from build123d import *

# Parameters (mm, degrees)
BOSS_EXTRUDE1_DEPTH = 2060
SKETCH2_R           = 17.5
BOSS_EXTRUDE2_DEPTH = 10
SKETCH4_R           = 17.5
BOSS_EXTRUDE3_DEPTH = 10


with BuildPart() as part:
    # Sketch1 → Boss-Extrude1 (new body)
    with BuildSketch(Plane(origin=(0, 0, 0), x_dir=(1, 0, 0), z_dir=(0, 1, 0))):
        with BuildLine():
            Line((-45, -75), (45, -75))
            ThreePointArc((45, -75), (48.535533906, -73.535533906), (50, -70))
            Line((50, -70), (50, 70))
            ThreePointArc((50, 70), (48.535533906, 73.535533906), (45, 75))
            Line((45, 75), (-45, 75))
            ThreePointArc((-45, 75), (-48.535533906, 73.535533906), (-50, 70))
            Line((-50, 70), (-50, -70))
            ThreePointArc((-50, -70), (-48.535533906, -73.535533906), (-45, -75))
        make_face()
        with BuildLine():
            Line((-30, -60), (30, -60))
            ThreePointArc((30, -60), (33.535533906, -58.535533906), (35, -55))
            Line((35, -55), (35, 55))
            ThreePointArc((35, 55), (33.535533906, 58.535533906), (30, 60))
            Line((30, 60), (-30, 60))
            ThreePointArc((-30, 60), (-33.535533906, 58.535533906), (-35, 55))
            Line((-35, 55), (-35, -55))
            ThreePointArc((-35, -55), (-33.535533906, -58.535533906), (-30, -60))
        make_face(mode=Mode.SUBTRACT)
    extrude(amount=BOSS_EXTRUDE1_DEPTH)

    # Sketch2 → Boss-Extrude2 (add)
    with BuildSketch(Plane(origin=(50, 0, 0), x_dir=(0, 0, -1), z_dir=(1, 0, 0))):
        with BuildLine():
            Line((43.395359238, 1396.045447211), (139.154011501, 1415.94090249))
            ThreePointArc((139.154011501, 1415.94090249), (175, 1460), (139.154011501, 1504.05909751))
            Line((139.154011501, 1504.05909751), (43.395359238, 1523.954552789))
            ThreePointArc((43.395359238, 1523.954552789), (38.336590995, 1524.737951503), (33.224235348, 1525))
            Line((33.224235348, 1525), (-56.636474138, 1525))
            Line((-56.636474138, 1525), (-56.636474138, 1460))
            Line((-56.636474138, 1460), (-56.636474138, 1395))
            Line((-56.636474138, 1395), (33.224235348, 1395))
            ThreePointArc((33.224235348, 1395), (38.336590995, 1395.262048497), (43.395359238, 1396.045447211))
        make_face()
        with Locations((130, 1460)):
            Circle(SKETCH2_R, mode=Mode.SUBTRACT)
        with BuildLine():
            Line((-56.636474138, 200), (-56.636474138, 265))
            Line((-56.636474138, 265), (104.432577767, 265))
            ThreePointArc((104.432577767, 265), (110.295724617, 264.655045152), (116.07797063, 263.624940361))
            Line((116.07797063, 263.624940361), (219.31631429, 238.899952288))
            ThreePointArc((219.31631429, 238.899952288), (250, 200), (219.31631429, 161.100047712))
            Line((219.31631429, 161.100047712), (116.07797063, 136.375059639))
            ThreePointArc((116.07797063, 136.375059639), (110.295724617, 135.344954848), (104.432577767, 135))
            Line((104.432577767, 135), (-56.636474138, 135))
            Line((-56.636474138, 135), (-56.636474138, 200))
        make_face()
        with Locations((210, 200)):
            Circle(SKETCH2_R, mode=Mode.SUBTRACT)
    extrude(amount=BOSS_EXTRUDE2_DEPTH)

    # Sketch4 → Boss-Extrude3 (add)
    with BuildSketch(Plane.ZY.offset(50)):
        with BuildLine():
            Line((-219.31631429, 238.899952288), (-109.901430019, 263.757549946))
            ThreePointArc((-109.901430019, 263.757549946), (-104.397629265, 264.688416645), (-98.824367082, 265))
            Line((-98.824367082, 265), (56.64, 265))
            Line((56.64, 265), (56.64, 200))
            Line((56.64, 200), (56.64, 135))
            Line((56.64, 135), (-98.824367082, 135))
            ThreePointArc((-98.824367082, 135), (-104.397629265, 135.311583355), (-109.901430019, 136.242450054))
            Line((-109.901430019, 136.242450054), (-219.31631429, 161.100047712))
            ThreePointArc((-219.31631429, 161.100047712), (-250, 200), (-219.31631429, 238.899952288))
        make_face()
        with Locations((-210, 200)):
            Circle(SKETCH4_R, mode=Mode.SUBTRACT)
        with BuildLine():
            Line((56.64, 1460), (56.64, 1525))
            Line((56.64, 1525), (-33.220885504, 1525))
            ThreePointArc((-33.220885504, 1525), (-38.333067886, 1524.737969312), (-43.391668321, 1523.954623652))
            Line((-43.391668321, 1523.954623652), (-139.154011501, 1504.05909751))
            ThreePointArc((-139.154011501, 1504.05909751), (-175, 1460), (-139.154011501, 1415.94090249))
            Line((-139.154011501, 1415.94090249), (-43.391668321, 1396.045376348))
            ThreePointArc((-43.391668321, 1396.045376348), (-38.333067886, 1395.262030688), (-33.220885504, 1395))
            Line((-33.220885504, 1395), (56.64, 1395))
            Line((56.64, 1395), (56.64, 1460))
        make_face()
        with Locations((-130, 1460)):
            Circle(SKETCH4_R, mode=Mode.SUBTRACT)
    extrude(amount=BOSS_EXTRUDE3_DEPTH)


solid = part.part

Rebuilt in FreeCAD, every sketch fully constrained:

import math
import FreeCAD as App
import Part
import Sketcher

doc = App.newDocument("Part")
body = doc.addObject("PartDesign::Body", "Body")

# Sketch on XZ plane
sketch1 = doc.addObject("Sketcher::SketchObject", "Sketch")
body.addObject(sketch1)
sketch1.AttachmentSupport = (doc.XZ_Plane, [""])
sketch1.MapMode = "FlatFace"
sketch1.addGeometry([
    Part.LineSegment(App.Vector(-45, 75, 0), App.Vector(45, 75, 0)),  # 0
    Part.ArcOfCircle(Part.Circle(App.Vector(45, 70, 0), App.Vector(0, 0, 1), 5), math.radians(0), math.radians(90)),  # 1
    Part.LineSegment(App.Vector(50, 70, 0), App.Vector(50, -70, 0)),  # 2
    Part.ArcOfCircle(Part.Circle(App.Vector(45, -70, 0), App.Vector(0, 0, 1), 5), math.radians(-90), math.radians(0)),  # 3
    Part.LineSegment(App.Vector(45, -75, 0), App.Vector(-45, -75, 0)),  # 4
    Part.ArcOfCircle(Part.Circle(App.Vector(-45, -70, 0), App.Vector(0, 0, 1), 5), math.radians(180), math.radians(270)),  # 5
    Part.LineSegment(App.Vector(-50, -70, 0), App.Vector(-50, 70, 0)),  # 6
    Part.ArcOfCircle(Part.Circle(App.Vector(-45, 70, 0), App.Vector(0, 0, 1), 5), math.radians(90), math.radians(180)),  # 7
    Part.LineSegment(App.Vector(30, 60, 0), App.Vector(-30, 60, 0)),  # 8
    Part.ArcOfCircle(Part.Circle(App.Vector(-30, 55, 0), App.Vector(0, 0, 1), 5), math.radians(90), math.radians(180)),  # 9
    Part.LineSegment(App.Vector(-35, 55, 0), App.Vector(-35, -55, 0)),  # 10
    Part.ArcOfCircle(Part.Circle(App.Vector(-30, -55, 0), App.Vector(0, 0, 1), 5), math.radians(180), math.radians(270)),  # 11
    Part.LineSegment(App.Vector(-30, -60, 0), App.Vector(30, -60, 0)),  # 12
    Part.ArcOfCircle(Part.Circle(App.Vector(30, -55, 0), App.Vector(0, 0, 1), 5), math.radians(-90), math.radians(0)),  # 13
    Part.LineSegment(App.Vector(35, -55, 0), App.Vector(35, 55, 0)),  # 14
    Part.ArcOfCircle(Part.Circle(App.Vector(30, 55, 0), App.Vector(0, 0, 1), 5), math.radians(0), math.radians(90)),  # 15
], False)
sketch1.addConstraint([
    Sketcher.Constraint("Tangent", 0, 2, 1, 2),
    Sketcher.Constraint("Tangent", 1, 1, 2, 1),
    Sketcher.Constraint("Tangent", 2, 2, 3, 2),
    Sketcher.Constraint("Tangent", 3, 1, 4, 1),
    Sketcher.Constraint("Tangent", 4, 2, 5, 2),
    Sketcher.Constraint("Tangent", 5, 1, 6, 1),
    Sketcher.Constraint("Tangent", 6, 2, 7, 2),
    Sketcher.Constraint("Tangent", 7, 1, 0, 1),
    Sketcher.Constraint("Tangent", 8, 2, 9, 1),
    Sketcher.Constraint("Tangent", 9, 2, 10, 1),
    Sketcher.Constraint("Tangent", 10, 2, 11, 1),
    Sketcher.Constraint("Tangent", 11, 2, 12, 1),
    Sketcher.Constraint("Tangent", 12, 2, 13, 1),
    Sketcher.Constraint("Tangent", 13, 2, 14, 1),
    Sketcher.Constraint("Tangent", 14, 2, 15, 1),
    Sketcher.Constraint("Tangent", 15, 2, 8, 1),
    Sketcher.Constraint("Horizontal", 0),
    Sketcher.Constraint("Vertical", 2),
    Sketcher.Constraint("Horizontal", 4),
    Sketcher.Constraint("Vertical", 6),
    Sketcher.Constraint("Horizontal", 8),
    Sketcher.Constraint("Vertical", 10),
    Sketcher.Constraint("Horizontal", 12),
    Sketcher.Constraint("Vertical", 14),
    Sketcher.Constraint("Equal", 1, 3),
    Sketcher.Constraint("Equal", 3, 5),
    Sketcher.Constraint("Equal", 5, 7),
    Sketcher.Constraint("Equal", 7, 9),
    Sketcher.Constraint("Equal", 9, 11),
    Sketcher.Constraint("Equal", 11, 13),
    Sketcher.Constraint("Equal", 13, 15),
    Sketcher.Constraint("Symmetric", 1, 3, 5, 3, -1, 1),
    Sketcher.Constraint("Symmetric", 9, 3, 13, 3, -1, 1),
    Sketcher.Constraint("Radius", 1, 5.0),
    Sketcher.Constraint("DistanceX", 0, 1, 0, 2, 90.0),
    Sketcher.Constraint("DistanceX", 8, 2, 8, 1, 60.0),
    Sketcher.Constraint("DistanceY", 2, 2, 2, 1, 140.0),
    Sketcher.Constraint("DistanceY", 10, 2, 10, 1, 110.0),
])
pad1 = doc.addObject("PartDesign::Pad", "Pad")
body.addObject(pad1)
pad1.Profile = sketch1
pad1.Length = 2060
pad1.Reversed = True

# Sketch on YZ plane
sketch2 = doc.addObject("Sketcher::SketchObject", "Sketch001")
body.addObject(sketch2)
sketch2.AttachmentSupport = (doc.YZ_Plane, [""])
sketch2.MapMode = "FlatFace"
sketch2.AttachmentOffset = App.Placement(App.Vector(0, 0, 50), App.Rotation())
sketch2.addGeometry([
    Part.LineSegment(App.Vector(1396, -43, 0), App.Vector(1416, -139, 0)),  # 0
    Part.ArcOfCircle(Part.Circle(App.Vector(1460, -130, 0), App.Vector(0, 0, 1), 45), math.radians(-168), math.radians(-12)),  # 1
    Part.LineSegment(App.Vector(1504, -139, 0), App.Vector(1524, -43, 0)),  # 2
    Part.ArcOfCircle(Part.Circle(App.Vector(1475, -33, 0), App.Vector(0, 0, 1), 50), math.radians(-11.74), math.radians(0)),  # 3
    Part.LineSegment(App.Vector(1525, -33, 0), App.Vector(1525, 57, 0)),  # 4
    Part.LineSegment(App.Vector(1525, 57, 0), App.Vector(1395, 57, 0)),  # 5
    Part.LineSegment(App.Vector(1395, 57, 0), App.Vector(1395, -33, 0)),  # 6
    Part.ArcOfCircle(Part.Circle(App.Vector(1445, -33, 0), App.Vector(0, 0, 1), 50), math.radians(-180), math.radians(-168.26)),  # 7
    Part.Circle(App.Vector(1460, -130, 0), App.Vector(0, 0, 1), 18),  # 8
    Part.LineSegment(App.Vector(265, -104, 0), App.Vector(265, 57, 0)),  # 9
    Part.LineSegment(App.Vector(265, 57, 0), App.Vector(135, 57, 0)),  # 10
    Part.LineSegment(App.Vector(135, 57, 0), App.Vector(135, -104, 0)),  # 11
    Part.ArcOfCircle(Part.Circle(App.Vector(185, -104, 0), App.Vector(0, 0, 1), 50), math.radians(180), math.radians(193.47)),  # 12
    Part.LineSegment(App.Vector(136, -116, 0), App.Vector(161, -219, 0)),  # 13
    Part.ArcOfCircle(Part.Circle(App.Vector(200, -210, 0), App.Vector(0, 0, 1), 40), math.radians(-167), math.radians(-13)),  # 14
    Part.LineSegment(App.Vector(239, -219, 0), App.Vector(264, -116, 0)),  # 15
    Part.ArcOfCircle(Part.Circle(App.Vector(215, -104, 0), App.Vector(0, 0, 1), 50), math.radians(-13.47), math.radians(0)),  # 16
    Part.Circle(App.Vector(200, -210, 0), App.Vector(0, 0, 1), 18),  # 17
], False)
sketch2.addConstraint([
    Sketcher.Constraint("Tangent", 0, 2, 1, 1),
    Sketcher.Constraint("Tangent", 1, 2, 2, 1),
    Sketcher.Constraint("Tangent", 2, 2, 3, 1),
    Sketcher.Constraint("Tangent", 3, 2, 4, 1),
    Sketcher.Constraint("Coincident", 4, 2, 5, 1),
    Sketcher.Constraint("Coincident", 5, 2, 6, 1),
    Sketcher.Constraint("Tangent", 6, 2, 7, 1),
    Sketcher.Constraint("Tangent", 7, 2, 0, 1),
    Sketcher.Constraint("Coincident", 9, 2, 10, 1),
    Sketcher.Constraint("Coincident", 10, 2, 11, 1),
    Sketcher.Constraint("Tangent", 11, 2, 12, 1),
    Sketcher.Constraint("Tangent", 12, 2, 13, 1),
    Sketcher.Constraint("Tangent", 13, 2, 14, 1),
    Sketcher.Constraint("Tangent", 14, 2, 15, 1),
    Sketcher.Constraint("Tangent", 15, 2, 16, 1),
    Sketcher.Constraint("Tangent", 16, 2, 9, 1),
    Sketcher.Constraint("Vertical", 4),
    Sketcher.Constraint("Horizontal", 5),
    Sketcher.Constraint("Vertical", 6),
    Sketcher.Constraint("Vertical", 9),
    Sketcher.Constraint("Horizontal", 10),
    Sketcher.Constraint("Vertical", 11),
    Sketcher.Constraint("Coincident", 8, 3, 1, 3),
    Sketcher.Constraint("Coincident", 17, 3, 14, 3),
    Sketcher.Constraint("Equal", 3, 7),
    Sketcher.Constraint("Equal", 7, 12),
    Sketcher.Constraint("Equal", 12, 16),
    Sketcher.Constraint("Equal", 8, 17),
    Sketcher.Constraint("Horizontal", 3, 3, 7, 3),
    Sketcher.Constraint("Horizontal", 12, 3, 16, 3),
    Sketcher.Constraint("Horizontal", 0, 2, 1, 2),
    Sketcher.Constraint("Horizontal", 5, 2, 9, 2),
    Sketcher.Constraint("Horizontal", 13, 2, 14, 2),
    Sketcher.Constraint("Equal", 5, 10),
    Sketcher.Constraint("Diameter", 8, 35.0),
    Sketcher.Constraint("Radius", 1, 45.0),
    Sketcher.Constraint("Radius", 3, 50.0),
    Sketcher.Constraint("Radius", 14, 40.0),
    Sketcher.Constraint("DistanceX", 5, 2, 5, 1, 130.0),
    Sketcher.Constraint("DistanceX", -1, 1, 1, 3, 1460.0),
    Sketcher.Constraint("DistanceY", 1, 3, -1, 1, 130.0),
    Sketcher.Constraint("DistanceX", -1, 1, 12, 3, 185.0),
    Sketcher.Constraint("DistanceY", 14, 3, -1, 1, 210.0),
    Sketcher.Constraint("DistanceY", 4, 1, 4, 2, 89.860709),
    Sketcher.Constraint("DistanceY", 9, 1, 9, 2, 161.069052),
    Sketcher.Constraint("Distance", 13, 106.15781),
])
pad2 = doc.addObject("PartDesign::Pad", "Pad001")
body.addObject(pad2)
pad2.Profile = sketch2
pad2.Length = 10

# Sketch on YZ plane
sketch3 = doc.addObject("Sketcher::SketchObject", "Sketch002")
body.addObject(sketch3)
sketch3.AttachmentSupport = (doc.YZ_Plane, [""])
sketch3.MapMode = "FlatFace"
sketch3.AttachmentOffset = App.Placement(App.Vector(0, 0, -50), App.Rotation())
sketch3.addGeometry([
    Part.LineSegment(App.Vector(264, -110, 0), App.Vector(239, -219, 0)),  # 0
    Part.ArcOfCircle(Part.Circle(App.Vector(200, -210, 0), App.Vector(0, 0, 1), 40), math.radians(-167), math.radians(-13)),  # 1
    Part.LineSegment(App.Vector(161, -219, 0), App.Vector(136, -110, 0)),  # 2
    Part.ArcOfCircle(Part.Circle(App.Vector(185, -99, 0), App.Vector(0, 0, 1), 50), math.radians(180), math.radians(192.8)),  # 3
    Part.LineSegment(App.Vector(135, -99, 0), App.Vector(135, 57, 0)),  # 4
    Part.LineSegment(App.Vector(135, 57, 0), App.Vector(265, 57, 0)),  # 5
    Part.LineSegment(App.Vector(265, 57, 0), App.Vector(265, -99, 0)),  # 6
    Part.ArcOfCircle(Part.Circle(App.Vector(215, -99, 0), App.Vector(0, 0, 1), 50), math.radians(-12.8), math.radians(0)),  # 7
    Part.Circle(App.Vector(200, -210, 0), App.Vector(0, 0, 1), 18),  # 8
    Part.LineSegment(App.Vector(1525, 57, 0), App.Vector(1525, -33, 0)),  # 9
    Part.ArcOfCircle(Part.Circle(App.Vector(1475, -33, 0), App.Vector(0, 0, 1), 50), math.radians(-11.74), math.radians(0)),  # 10
    Part.LineSegment(App.Vector(1524, -43, 0), App.Vector(1504, -139, 0)),  # 11
    Part.ArcOfCircle(Part.Circle(App.Vector(1460, -130, 0), App.Vector(0, 0, 1), 45), math.radians(-168), math.radians(-12)),  # 12
    Part.LineSegment(App.Vector(1416, -139, 0), App.Vector(1396, -43, 0)),  # 13
    Part.ArcOfCircle(Part.Circle(App.Vector(1445, -33, 0), App.Vector(0, 0, 1), 50), math.radians(-180), math.radians(-168.26)),  # 14
    Part.LineSegment(App.Vector(1395, -33, 0), App.Vector(1395, 57, 0)),  # 15
    Part.LineSegment(App.Vector(1395, 57, 0), App.Vector(1525, 57, 0)),  # 16
    Part.Circle(App.Vector(1460, -130, 0), App.Vector(0, 0, 1), 18),  # 17
], False)
sketch3.addConstraint([
    Sketcher.Constraint("Coincident", 0, 2, 1, 2),
    Sketcher.Constraint("Coincident", 1, 1, 2, 1),
    Sketcher.Constraint("Tangent", 2, 2, 3, 2),
    Sketcher.Constraint("Tangent", 3, 1, 4, 1),
    Sketcher.Constraint("Coincident", 4, 2, 5, 1),
    Sketcher.Constraint("Coincident", 5, 2, 6, 1),
    Sketcher.Constraint("Tangent", 6, 2, 7, 2),
    Sketcher.Constraint("Tangent", 7, 1, 0, 1),
    Sketcher.Constraint("Tangent", 9, 2, 10, 2),
    Sketcher.Constraint("Tangent", 10, 1, 11, 1),
    Sketcher.Constraint("Coincident", 11, 2, 12, 2),
    Sketcher.Constraint("Coincident", 12, 1, 13, 1),
    Sketcher.Constraint("Tangent", 13, 2, 14, 2),
    Sketcher.Constraint("Tangent", 14, 1, 15, 1),
    Sketcher.Constraint("Coincident", 15, 2, 16, 1),
    Sketcher.Constraint("Coincident", 16, 2, 9, 1),
    Sketcher.Constraint("Vertical", 4),
    Sketcher.Constraint("Horizontal", 5),
    Sketcher.Constraint("Vertical", 6),
    Sketcher.Constraint("Vertical", 9),
    Sketcher.Constraint("Vertical", 15),
    Sketcher.Constraint("Horizontal", 16),
    Sketcher.Constraint("Coincident", 8, 3, 1, 3),
    Sketcher.Constraint("Coincident", 17, 3, 12, 3),
    Sketcher.Constraint("Equal", 3, 7),
    Sketcher.Constraint("Equal", 7, 10),
    Sketcher.Constraint("Equal", 10, 14),
    Sketcher.Constraint("Equal", 8, 17),
    Sketcher.Constraint("Horizontal", 3, 3, 7, 3),
    Sketcher.Constraint("Horizontal", 10, 3, 14, 3),
    Sketcher.Constraint("Horizontal", 0, 2, 1, 1),
    Sketcher.Constraint("Horizontal", 2, 2, 7, 1),
    Sketcher.Constraint("Horizontal", 11, 2, 12, 1),
    Sketcher.Constraint("Horizontal", 10, 1, 13, 2),
    Sketcher.Constraint("Horizontal", 5, 2, 15, 2),
    Sketcher.Constraint("Equal", 5, 16),
    Sketcher.Constraint("Diameter", 8, 35.0),
    Sketcher.Constraint("Radius", 1, 40.0),
    Sketcher.Constraint("Radius", 3, 50.0),
    Sketcher.Constraint("Radius", 12, 45.0),
    Sketcher.Constraint("DistanceX", 5, 1, 5, 2, 130.0),
    Sketcher.Constraint("DistanceX", -1, 1, 1, 3, 200.0),
    Sketcher.Constraint("DistanceY", 1, 3, -1, 1, 210.0),
    Sketcher.Constraint("DistanceX", -1, 1, 10, 3, 1475.0),
    Sketcher.Constraint("DistanceY", 12, 3, -1, 1, 130.0),
    Sketcher.Constraint("DistanceY", -1, 1, 4, 2, 56.64),
    Sketcher.Constraint("Distance", 11, 97.807251),
    Sketcher.Constraint("DistanceY", 4, 1, 4, 2, 155.464367),
    Sketcher.Constraint("DistanceY", 9, 2, 9, 1, 89.860886),
    Sketcher.Constraint("DistanceY", 2, 2, -1, 1, 109.90143),
])
pad3 = doc.addObject("PartDesign::Pad", "Pad002")
body.addObject(pad3)
pad3.Profile = sketch3
pad3.Length = 10
pad3.Reversed = True

doc.recompute()
